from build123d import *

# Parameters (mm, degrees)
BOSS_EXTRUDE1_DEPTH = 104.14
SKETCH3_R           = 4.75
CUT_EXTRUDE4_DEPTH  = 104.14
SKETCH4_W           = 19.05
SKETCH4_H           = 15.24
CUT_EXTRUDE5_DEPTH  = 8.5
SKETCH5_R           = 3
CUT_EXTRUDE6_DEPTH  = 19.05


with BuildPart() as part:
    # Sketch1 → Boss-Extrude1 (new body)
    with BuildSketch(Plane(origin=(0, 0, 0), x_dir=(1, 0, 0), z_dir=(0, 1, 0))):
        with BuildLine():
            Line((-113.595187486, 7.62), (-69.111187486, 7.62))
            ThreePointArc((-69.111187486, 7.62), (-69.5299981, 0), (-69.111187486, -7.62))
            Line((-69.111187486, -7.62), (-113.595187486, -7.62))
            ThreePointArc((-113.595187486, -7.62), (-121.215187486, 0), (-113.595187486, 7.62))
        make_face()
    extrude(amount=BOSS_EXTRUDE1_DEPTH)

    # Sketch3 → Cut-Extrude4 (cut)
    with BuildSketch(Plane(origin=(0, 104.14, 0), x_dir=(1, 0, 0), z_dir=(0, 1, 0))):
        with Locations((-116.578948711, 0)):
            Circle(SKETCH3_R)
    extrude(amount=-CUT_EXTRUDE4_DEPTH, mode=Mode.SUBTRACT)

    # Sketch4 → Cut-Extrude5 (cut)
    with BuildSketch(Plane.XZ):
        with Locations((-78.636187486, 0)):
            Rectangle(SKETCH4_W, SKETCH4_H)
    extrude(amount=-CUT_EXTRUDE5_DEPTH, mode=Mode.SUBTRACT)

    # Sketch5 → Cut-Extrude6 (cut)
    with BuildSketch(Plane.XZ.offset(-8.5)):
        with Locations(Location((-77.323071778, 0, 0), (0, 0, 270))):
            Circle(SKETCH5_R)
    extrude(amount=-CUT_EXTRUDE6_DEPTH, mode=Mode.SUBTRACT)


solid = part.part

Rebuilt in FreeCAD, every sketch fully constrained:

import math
import FreeCAD as App
import Part
import Sketcher

doc = App.newDocument("Part")
body = doc.addObject("PartDesign::Body", "Body")

sketch1 = body.newObject("Sketcher::SketchObject", "Sketch")
sketch1.AttachmentSupport = (doc.getObject("XZ_Plane"), [""])
sketch1.MapMode = "FlatFace"
sketch1.addGeometry([
    Part.LineSegment(App.Vector(-69, -8, 0), App.Vector(-114, -8, 0)),
    Part.ArcOfCircle(Part.Circle(App.Vector(-114, 0, 0), App.Vector(0, 0, 1), 8), math.radians(90), math.radians(270)),
    Part.LineSegment(App.Vector(-114, 8, 0), App.Vector(-69, 8, 0)),
    Part.ArcOfCircle(Part.Circle(App.Vector(0, 0, 0), App.Vector(0, 0, 1), 70), math.radians(173.71), math.radians(186.29)),
], False)
sketch1.addConstraint([
    Sketcher.Constraint("Tangent", 0, 2, 1, 2),
    Sketcher.Constraint("Tangent", 1, 1, 2, 1),
    Sketcher.Constraint("Coincident", 2, 2, 3, 1),
    Sketcher.Constraint("Coincident", 3, 2, 0, 1),
    Sketcher.Constraint("Horizontal", 0),
    Sketcher.Constraint("Horizontal", 2),
    Sketcher.Constraint("Coincident", 3, 3, -1, 1),
    Sketcher.Constraint("PointOnObject", 1, 3, -1),
    Sketcher.Constraint("Radius", 1, 7.62),
    Sketcher.Constraint("Radius", 3, 69.529998),
    Sketcher.Constraint("DistanceX", 0, 2, 0, 1, 44.484),
])
pad1 = body.newObject("PartDesign::Pad", "Pad")
pad1.Profile = sketch1
pad1.Length = 104.14
pad1.Reversed = True

sketch2 = body.newObject("Sketcher::SketchObject", "Sketch001")
sketch2.AttachmentSupport = (doc.getObject("XZ_Plane"), [""])
sketch2.MapMode = "FlatFace"
sketch2.AttachmentOffset = App.Placement(App.Vector(0, 0, -104.14), App.Rotation())
sketch2.addGeometry(Part.Circle(App.Vector(-116.6, 0, 0), App.Vector(0, 0, 1), 4.8), False)
sketch2.addConstraint([
    Sketcher.Constraint("PointOnObject", 0, 3, -1),
    Sketcher.Constraint("Diameter", 0, 9.5),
    Sketcher.Constraint("DistanceX", 0, 3, -1, 1, 116.578949),
])
pocket1 = body.newObject("PartDesign::Pocket", "Pocket")
pocket1.Profile = sketch2
pocket1.Length = 104.14
pocket1.Reversed = True

sketch3 = body.newObject("Sketcher::SketchObject", "Sketch002")
sketch3.AttachmentSupport = (doc.getObject("XZ_Plane"), [""])
sketch3.MapMode = "FlatFace"
sketch3.addGeometry([
    Part.LineSegment(App.Vector(-88, 8, 0), App.Vector(-88, -8, 0)),
    Part.LineSegment(App.Vector(-88, -8, 0), App.Vector(-69, -8, 0)),
    Part.LineSegment(App.Vector(-69, -8, 0), App.Vector(-69, 8, 0)),
    Part.LineSegment(App.Vector(-69, 8, 0), App.Vector(-88, 8, 0)),
], False)
sketch3.addConstraint([
    Sketcher.Constraint("Coincident", 0, 2, 1, 1),
    Sketcher.Constraint("Coincident", 1, 2, 2, 1),
    Sketcher.Constraint("Coincident", 2, 2, 3, 1),
    Sketcher.Constraint("Coincident", 3, 2, 0, 1),
    Sketcher.Constraint("Vertical", 0),
    Sketcher.Constraint("Horizontal", 1),
    Sketcher.Constraint("Vertical", 2),
    Sketcher.Constraint("Horizontal", 3),
    Sketcher.Constraint("DistanceX", 1, 1, 1, 2, 19.05),
    Sketcher.Constraint("DistanceY", 0, 2, 0, 1, 15.24),
    Sketcher.Constraint("DistanceY", 0, 2, -1, 1, 7.62),
    Sketcher.Constraint("DistanceX", 0, 2, -1, 1, 88.161187),
])
pocket2 = body.newObject("PartDesign::Pocket", "Pocket001")
pocket2.Profile = sketch3
pocket2.Length = 8.5

sketch4 = body.newObject("Sketcher::SketchObject", "Sketch003")
sketch4.AttachmentSupport = (doc.getObject("XZ_Plane"), [""])
sketch4.MapMode = "FlatFace"
sketch4.AttachmentOffset = App.Placement(App.Vector(0, 0, -8.5), App.Rotation())
sketch4.addGeometry(Part.Circle(App.Vector(-77.3, 0, 0), App.Vector(0, 0, 1), 3), False)
sketch4.addConstraint([
    Sketcher.Constraint("PointOnObject", 0, 3, -1),
    Sketcher.Constraint("Diameter", 0, 6.0),
    Sketcher.Constraint("DistanceX", 0, 3, -1, 1, 77.323072),
])
pocket3 = body.newObject("PartDesign::Pocket", "Pocket002")
pocket3.Profile = sketch4
pocket3.Length = 19.05

doc.recompute()
